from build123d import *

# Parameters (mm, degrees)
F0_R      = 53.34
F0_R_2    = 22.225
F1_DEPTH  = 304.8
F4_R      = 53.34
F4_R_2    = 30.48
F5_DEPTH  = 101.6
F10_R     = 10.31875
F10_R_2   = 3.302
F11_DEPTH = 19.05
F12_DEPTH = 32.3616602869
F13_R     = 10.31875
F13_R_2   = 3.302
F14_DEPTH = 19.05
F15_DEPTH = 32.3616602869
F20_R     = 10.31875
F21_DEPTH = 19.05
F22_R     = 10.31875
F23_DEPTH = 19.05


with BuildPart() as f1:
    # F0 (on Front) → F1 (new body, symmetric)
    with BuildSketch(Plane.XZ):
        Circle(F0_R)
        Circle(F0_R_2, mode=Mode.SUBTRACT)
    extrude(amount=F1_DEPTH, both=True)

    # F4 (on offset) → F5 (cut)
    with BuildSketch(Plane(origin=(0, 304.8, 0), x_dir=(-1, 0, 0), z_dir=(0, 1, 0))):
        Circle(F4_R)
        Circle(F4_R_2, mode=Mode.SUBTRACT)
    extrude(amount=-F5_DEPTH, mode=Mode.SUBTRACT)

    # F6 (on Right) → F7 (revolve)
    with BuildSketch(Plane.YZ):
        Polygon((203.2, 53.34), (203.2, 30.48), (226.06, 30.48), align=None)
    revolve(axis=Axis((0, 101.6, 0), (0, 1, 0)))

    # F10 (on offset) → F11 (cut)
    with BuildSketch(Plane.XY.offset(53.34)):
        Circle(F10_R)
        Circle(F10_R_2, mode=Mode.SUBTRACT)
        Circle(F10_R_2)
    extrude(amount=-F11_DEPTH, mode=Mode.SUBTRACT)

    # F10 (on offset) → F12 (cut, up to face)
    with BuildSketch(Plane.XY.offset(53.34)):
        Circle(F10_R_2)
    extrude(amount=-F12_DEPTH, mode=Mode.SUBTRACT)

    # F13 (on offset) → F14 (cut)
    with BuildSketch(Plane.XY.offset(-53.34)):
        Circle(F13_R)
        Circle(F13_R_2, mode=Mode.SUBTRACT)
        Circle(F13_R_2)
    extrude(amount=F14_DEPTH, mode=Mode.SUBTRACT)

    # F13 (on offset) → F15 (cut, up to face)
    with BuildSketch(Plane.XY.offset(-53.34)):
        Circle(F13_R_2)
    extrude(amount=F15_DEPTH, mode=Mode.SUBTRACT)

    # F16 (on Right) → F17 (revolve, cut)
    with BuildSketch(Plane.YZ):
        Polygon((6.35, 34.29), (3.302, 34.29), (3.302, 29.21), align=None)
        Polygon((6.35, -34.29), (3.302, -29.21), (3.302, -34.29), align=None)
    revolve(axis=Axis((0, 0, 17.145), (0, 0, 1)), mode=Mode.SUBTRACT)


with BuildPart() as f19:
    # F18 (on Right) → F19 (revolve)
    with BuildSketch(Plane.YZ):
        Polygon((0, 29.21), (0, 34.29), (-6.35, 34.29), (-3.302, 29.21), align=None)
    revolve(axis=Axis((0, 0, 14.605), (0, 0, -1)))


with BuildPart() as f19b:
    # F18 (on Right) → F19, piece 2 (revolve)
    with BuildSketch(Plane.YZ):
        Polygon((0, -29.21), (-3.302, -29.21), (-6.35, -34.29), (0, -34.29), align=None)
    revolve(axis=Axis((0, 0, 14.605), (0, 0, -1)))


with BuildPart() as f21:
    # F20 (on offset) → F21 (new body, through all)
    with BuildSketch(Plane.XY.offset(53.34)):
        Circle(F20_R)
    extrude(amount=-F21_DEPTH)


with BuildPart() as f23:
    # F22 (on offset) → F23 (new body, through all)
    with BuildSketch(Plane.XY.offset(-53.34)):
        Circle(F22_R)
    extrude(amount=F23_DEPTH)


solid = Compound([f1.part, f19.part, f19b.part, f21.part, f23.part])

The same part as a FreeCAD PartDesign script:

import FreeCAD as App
import Part
import Sketcher
from FreeCAD import Vector
Q = App.Units.Quantity


def add_polygon(sketch, points):
    """Adds a closed chain of lines whose ends are joined by coincident constraints."""
    first, n = sketch.GeometryCount, len(points)
    for a, b in zip(points, points[1:] + points[:1]):
        sketch.addGeometry(Part.LineSegment(App.Vector(*a, 0), App.Vector(*b, 0)), False)
    for i in range(n):
        sketch.addConstraint(Sketcher.Constraint("Coincident", first + i, 2, first + (i + 1) % n, 1))

doc = App.newDocument("Part")
body = doc.addObject("PartDesign::Body", "Body")

sketch1 = body.newObject("Sketcher::SketchObject", "Sketch")
sketch1.AttachmentSupport = (doc.getObject("XZ_Plane"), [""])
sketch1.MapMode = "FlatFace"
sketch1.addGeometry([
    Part.Circle(Vector(0, 0, 0), Vector(0, 0, 1), 53.34),
    Part.Circle(Vector(0, 0, 0), Vector(0, 0, 1), 22.225),
], False)
sketch1.addConstraint([
    Sketcher.Constraint("Coincident", 0, 3, -1, 1),
    Sketcher.Constraint("Coincident", 1, 3, -1, 1),
    Sketcher.Constraint("Diameter", 0, Q("4.2 in")),
    Sketcher.Constraint("Diameter", 1, Q("1.75 in")),
])
pad1 = body.newObject("PartDesign::Pad", "Pad")
pad1.Profile = sketch1
pad1.Length = Q("24 in")
pad1.Midplane = True

sketch2 = body.newObject("Sketcher::SketchObject", "Sketch001")
sketch2.AttachmentSupport = (doc.getObject("XZ_Plane"), [""])
sketch2.MapMode = "FlatFace"
sketch2.AttachmentOffset = App.Placement(Vector(0, 0, -12 * 25.4), App.Rotation())
sketch2.addGeometry([
    Part.Circle(Vector(0, 0, 0), Vector(0, 0, 1), 53.34),
    Part.Circle(Vector(0, 0, 0), Vector(0, 0, 1), 30.48),
], False)
sketch2.addConstraint([
    Sketcher.Constraint("Coincident", 0, 3, -1, 1),
    Sketcher.Constraint("Coincident", 1, 3, -1, 1),
    Sketcher.Constraint("Diameter", 0, Q("4.2 in")),
    Sketcher.Constraint("Diameter", 1, Q("2.4 in")),
])
pocket1 = body.newObject("PartDesign::Pocket", "Pocket")
pocket1.Profile = sketch2
pocket1.Length = Q("4 in")
pocket1.Reversed = True

sketch3 = body.newObject("Sketcher::SketchObject", "Sketch002")
sketch3.AttachmentSupport = (doc.getObject("YZ_Plane"), [""])
sketch3.MapMode = "FlatFace"
add_polygon(sketch3, [(203.2, 53.34), (203.2, 30.48), (226.06, 30.48)])
sketch3.addConstraint([
    Sketcher.Constraint("Vertical", 0),
    Sketcher.Constraint("Horizontal", 1),
    Sketcher.Constraint("Equal", 1, 0),
    Sketcher.Constraint("DistanceX", 1, 1, 1, 2, Q("0.9 in")),
    Sketcher.Constraint("DistanceX", -1, 1, 0, 2, Q("8 in")),
    Sketcher.Constraint("DistanceY", -1, 1, 0, 2, Q("1.2 in")),
])
revolution = body.newObject("PartDesign::Revolution", "Revolution")
revolution.Profile = sketch3
revolution.ReferenceAxis = (sketch3, ["H_Axis"])
revolution.Angle = 360

sketch4 = body.newObject("Sketcher::SketchObject", "Sketch003")
sketch4.AttachmentSupport = (doc.getObject("XY_Plane"), [""])
sketch4.MapMode = "FlatFace"
sketch4.AttachmentOffset = App.Placement(Vector(0, 0, 2.1 * 25.4), App.Rotation())
sketch4.addGeometry(Part.Circle(Vector(0, 0, 0), Vector(0, 0, 1), 10.31875), False)
sketch4.addConstraint([
    Sketcher.Constraint("Coincident", 0, 3, -1, 1),
    Sketcher.Constraint("Diameter", 0, Q("0.8125 in")),
])
pocket2 = body.newObject("PartDesign::Pocket", "Pocket001")
pocket2.Profile = sketch4
pocket2.Length = Q("0.75 in")

sketch5 = body.newObject("Sketcher::SketchObject", "Sketch004")
sketch5.AttachmentSupport = (doc.getObject("XY_Plane"), [""])
sketch5.MapMode = "FlatFace"
sketch5.AttachmentOffset = App.Placement(Vector(0, 0, 2.1 * 25.4), App.Rotation())
sketch5.addGeometry(Part.Circle(Vector(0, 0, 0), Vector(0, 0, 1), 3.302), False)
sketch5.addConstraint([
    Sketcher.Constraint("Coincident", 0, 3, -1, 1),
    Sketcher.Constraint("Diameter", 0, Q("0.26 in")),
])
pocket3 = body.newObject("PartDesign::Pocket", "Pocket002")
pocket3.Profile = sketch5
pocket3.Length = 32.36166

sketch6 = body.newObject("Sketcher::SketchObject", "Sketch005")
sketch6.AttachmentSupport = (doc.getObject("XY_Plane"), [""])
sketch6.MapMode = "FlatFace"
sketch6.AttachmentOffset = App.Placement(Vector(0, 0, -2.1 * 25.4), App.Rotation())
sketch6.addGeometry(Part.Circle(Vector(0, 0, 0), Vector(0, 0, 1), 10.31875), False)
sketch6.addConstraint([
    Sketcher.Constraint("Coincident", 0, 3, -1, 1),
    Sketcher.Constraint("Diameter", 0, Q("0.8125 in")),
])
pocket4 = body.newObject("PartDesign::Pocket", "Pocket003")
pocket4.Profile = sketch6
pocket4.Length = Q("0.75 in")
pocket4.Reversed = True

sketch7 = body.newObject("Sketcher::SketchObject", "Sketch006")
sketch7.AttachmentSupport = (doc.getObject("XY_Plane"), [""])
sketch7.MapMode = "FlatFace"
sketch7.AttachmentOffset = App.Placement(Vector(0, 0, -2.1 * 25.4), App.Rotation())
sketch7.addGeometry(Part.Circle(Vector(0, 0, 0), Vector(0, 0, 1), 3.302), False)
sketch7.addConstraint([
    Sketcher.Constraint("Coincident", 0, 3, -1, 1),
    Sketcher.Constraint("Diameter", 0, Q("0.26 in")),
])
pocket5 = body.newObject("PartDesign::Pocket", "Pocket004")
pocket5.Profile = sketch7
pocket5.Length = 32.36166
pocket5.Reversed = True

sketch8 = body.newObject("Sketcher::SketchObject", "Sketch007")
sketch8.AttachmentSupport = (doc.getObject("YZ_Plane"), [""])
sketch8.MapMode = "FlatFace"
add_polygon(sketch8, [(6.35, 34.29), (3.302, 34.29), (3.302, 29.21)])
add_polygon(sketch8, [(6.35, -34.29), (3.302, -29.21), (3.302, -34.29)])
sketch8.addConstraint([
    Sketcher.Constraint("Horizontal", 0),
    Sketcher.Constraint("Vertical", 1),
    Sketcher.Constraint("Vertical", 4),
    Sketcher.Constraint("Horizontal", 5),
    Sketcher.Constraint("Symmetric", 1, 2, 3, 2, -1),
    Sketcher.Constraint("Symmetric", 2, 2, 5, 2, -1),
    Sketcher.Constraint("DistanceY", 1, 2, 1, 1, Q("0.2 in")),
    Sketcher.Constraint("DistanceX", 0, 2, 0, 1, Q("0.12 in")),
    Sketcher.Constraint("DistanceY", 3, 2, 1, 2, Q("2.3 in")),
    Sketcher.Constraint("DistanceX", -1, 1, 0, 2, Q("0.13 in")),
])
groove = body.newObject("PartDesign::Groove", "Groove")
groove.Profile = sketch8
groove.ReferenceAxis = (sketch8, ["V_Axis"])
groove.Angle = 360
body2 = doc.addObject("PartDesign::Body", "Body001")

sketch9 = body2.newObject("Sketcher::SketchObject", "Sketch008")
sketch9.AttachmentSupport = (doc.getObject("YZ_Plane001"), [""])
sketch9.MapMode = "FlatFace"
add_polygon(sketch9, [(0, 29.21), (0, 34.29), (-6.35, 34.29), (-3.302, 29.21)])
sketch9.addConstraint([
    Sketcher.Constraint("Vertical", 0),
    Sketcher.Constraint("Horizontal", 1),
    Sketcher.Constraint("Horizontal", 3),
    Sketcher.Constraint("PointOnObject", 0, 2, -2),
    Sketcher.Constraint("DistanceY", 0, 1, 0, 2, Q("0.2 in")),
    Sketcher.Constraint("DistanceX", 1, 2, 1, 1, Q("0.25 in")),
    Sketcher.Constraint("DistanceX", 3, 1, 3, 2, Q("0.13 in")),
    Sketcher.Constraint("DistanceY", -1, 1, 0, 2, Q("1.35 in")),
])
revolution2 = body2.newObject("PartDesign::Revolution", "Revolution001")
revolution2.Profile = sketch9
revolution2.ReferenceAxis = (sketch9, ["V_Axis"])
revolution2.Angle = 360
body3 = doc.addObject("PartDesign::Body", "Body002")

sketch10 = body3.newObject("Sketcher::SketchObject", "Sketch009")
sketch10.AttachmentSupport = (doc.getObject("YZ_Plane002"), [""])
sketch10.MapMode = "FlatFace"
add_polygon(sketch10, [(0, -29.21), (-3.302, -29.21), (-6.35, -34.29), (0, -34.29)])
sketch10.addConstraint([
    Sketcher.Constraint("Horizontal", 0),
    Sketcher.Constraint("Horizontal", 2),
    Sketcher.Constraint("Vertical", 3),
    Sketcher.Constraint("PointOnObject", 2, 2, -2),
    Sketcher.Constraint("DistanceY", 3, 1, 3, 2, Q("0.2 in")),
    Sketcher.Constraint("DistanceX", 0, 2, 0, 1, Q("0.13 in")),
    Sketcher.Constraint("DistanceX", 2, 1, 2, 2, Q("0.25 in")),
    Sketcher.Constraint("DistanceY", 0, 2, -1, 1, Q("1.15 in")),
])
revolution3 = body3.newObject("PartDesign::Revolution", "Revolution002")
revolution3.Profile = sketch10
revolution3.ReferenceAxis = (sketch10, ["V_Axis"])
revolution3.Angle = 360
body4 = doc.addObject("PartDesign::Body", "Body003")

sketch11 = body4.newObject("Sketcher::SketchObject", "Sketch010")
sketch11.AttachmentSupport = (doc.getObject("XY_Plane003"), [""])
sketch11.MapMode = "FlatFace"
sketch11.AttachmentOffset = App.Placement(Vector(0, 0, 2.1 * 25.4), App.Rotation())
sketch11.addGeometry(Part.Circle(Vector(0, 0, 0), Vector(0, 0, 1), 10.31875), False)
sketch11.addConstraint([
    Sketcher.Constraint("Coincident", 0, 3, -1, 1),
    Sketcher.Constraint("Diameter", 0, Q("0.8125 in")),
])
pad2 = body4.newObject("PartDesign::Pad", "Pad001")
pad2.Profile = sketch11
pad2.Length = Q("0.75 in")
pad2.Reversed = True
body5 = doc.addObject("PartDesign::Body", "Body004")

sketch12 = body5.newObject("Sketcher::SketchObject", "Sketch011")
sketch12.AttachmentSupport = (doc.getObject("XY_Plane004"), [""])
sketch12.MapMode = "FlatFace"
sketch12.AttachmentOffset = App.Placement(Vector(0, 0, -2.1 * 25.4), App.Rotation())
sketch12.addGeometry(Part.Circle(Vector(0, 0, 0), Vector(0, 0, 1), 10.31875), False)
sketch12.addConstraint([
    Sketcher.Constraint("Coincident", 0, 3, -1, 1),
    Sketcher.Constraint("Diameter", 0, Q("0.8125 in")),
])
pad3 = body5.newObject("PartDesign::Pad", "Pad002")
pad3.Profile = sketch12
pad3.Length = Q("0.75 in")

doc.recompute()
